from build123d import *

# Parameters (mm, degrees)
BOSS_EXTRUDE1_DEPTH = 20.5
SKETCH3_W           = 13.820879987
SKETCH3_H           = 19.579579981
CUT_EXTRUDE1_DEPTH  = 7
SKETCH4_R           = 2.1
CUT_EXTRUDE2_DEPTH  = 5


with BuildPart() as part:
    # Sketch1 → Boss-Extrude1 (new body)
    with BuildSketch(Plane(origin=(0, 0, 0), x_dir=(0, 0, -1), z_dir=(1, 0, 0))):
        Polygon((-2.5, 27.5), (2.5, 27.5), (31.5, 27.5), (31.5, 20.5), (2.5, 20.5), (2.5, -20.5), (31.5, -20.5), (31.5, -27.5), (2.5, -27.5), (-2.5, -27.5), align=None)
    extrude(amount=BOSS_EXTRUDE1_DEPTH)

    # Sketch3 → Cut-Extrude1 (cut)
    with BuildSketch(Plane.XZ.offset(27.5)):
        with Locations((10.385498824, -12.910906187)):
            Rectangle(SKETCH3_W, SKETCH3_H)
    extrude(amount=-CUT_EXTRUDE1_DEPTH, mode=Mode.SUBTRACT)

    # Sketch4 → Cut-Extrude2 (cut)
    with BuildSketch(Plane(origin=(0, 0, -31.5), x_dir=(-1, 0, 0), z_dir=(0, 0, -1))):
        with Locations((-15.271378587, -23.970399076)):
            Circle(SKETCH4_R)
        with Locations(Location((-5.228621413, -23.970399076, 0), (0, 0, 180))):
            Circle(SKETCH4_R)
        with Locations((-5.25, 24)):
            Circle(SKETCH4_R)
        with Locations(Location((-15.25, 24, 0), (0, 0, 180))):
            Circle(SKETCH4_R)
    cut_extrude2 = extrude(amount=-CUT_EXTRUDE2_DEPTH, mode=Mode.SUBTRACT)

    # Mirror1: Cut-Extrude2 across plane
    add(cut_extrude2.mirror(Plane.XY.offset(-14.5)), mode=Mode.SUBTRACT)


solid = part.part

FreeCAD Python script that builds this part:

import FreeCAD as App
import Part
import Sketcher
from FreeCAD import Vector
Q = App.Units.Quantity

doc = App.newDocument("Part")
body = doc.addObject("PartDesign::Body", "Body")

sketch1 = body.newObject("Sketcher::SketchObject", "Sketch")
sketch1.AttachmentSupport = (doc.getObject("YZ_Plane"), [""])
sketch1.MapMode = "FlatFace"
sketch1.addGeometry(Part.LineSegment(Vector(28, -32, 0), Vector(28, 2, 0)), False)
sketch1.addGeometry(Part.LineSegment(Vector(28, 2, 0), Vector(-28, 2, 0)), False)
sketch1.addGeometry(Part.LineSegment(Vector(-28, 2, 0), Vector(-28, -32, 0)), False)
sketch1.addGeometry(Part.LineSegment(Vector(-28, -32, 0), Vector(-20, -32, 0)), False)
sketch1.addGeometry(Part.LineSegment(Vector(-20, -32, 0), Vector(-20, -2, 0)), False)
sketch1.addGeometry(Part.LineSegment(Vector(-20, -2, 0), Vector(20, -2, 0)), False)
sketch1.addGeometry(Part.LineSegment(Vector(20, -2, 0), Vector(20, -32, 0)), False)
sketch1.addGeometry(Part.LineSegment(Vector(20, -32, 0), Vector(28, -32, 0)), False)
sketch1.addConstraint(Sketcher.Constraint("Coincident", 0, 2, 1, 1))
sketch1.addConstraint(Sketcher.Constraint("Coincident", 1, 2, 2, 1))
sketch1.addConstraint(Sketcher.Constraint("Coincident", 2, 2, 3, 1))
sketch1.addConstraint(Sketcher.Constraint("Coincident", 3, 2, 4, 1))
sketch1.addConstraint(Sketcher.Constraint("Coincident", 4, 2, 5, 1))
sketch1.addConstraint(Sketcher.Constraint("Coincident", 5, 2, 6, 1))
sketch1.addConstraint(Sketcher.Constraint("Coincident", 6, 2, 7, 1))
sketch1.addConstraint(Sketcher.Constraint("Coincident", 7, 2, 0, 1))
sketch1.addConstraint(Sketcher.Constraint("Vertical", 0))
sketch1.addConstraint(Sketcher.Constraint("Horizontal", 1))
sketch1.addConstraint(Sketcher.Constraint("Vertical", 2))
sketch1.addConstraint(Sketcher.Constraint("Horizontal", 3))
sketch1.addConstraint(Sketcher.Constraint("Vertical", 4))
sketch1.addConstraint(Sketcher.Constraint("Horizontal", 5))
sketch1.addConstraint(Sketcher.Constraint("Vertical", 6))
sketch1.addConstraint(Sketcher.Constraint("Horizontal", 7))
sketch1.addConstraint(Sketcher.Constraint("Symmetric", 3, 2, 6, 2, -2))
sketch1.addConstraint(Sketcher.Constraint("Equal", 3, 7))
sketch1.addConstraint(Sketcher.Constraint("DistanceX", 1, 2, 1, 1, Q("55 mm")))
sketch1.addConstraint(Sketcher.Constraint("DistanceX", 3, 1, 3, 2, Q("7 mm")))
sketch1.addConstraint(Sketcher.Constraint("DistanceY", 0, 1, 0, 2, Q("34 mm")))
sketch1.addConstraint(Sketcher.Constraint("DistanceY", 4, 1, 4, 2, Q("29 mm")))
sketch1.addConstraint(Sketcher.Constraint("DistanceY", -1, 1, 0, 2, Q("2.5 mm")))
pad1 = body.newObject("PartDesign::Pad", "Pad")
pad1.Profile = sketch1
pad1.Length = 20.5

sketch2 = body.newObject("Sketcher::SketchObject", "Sketch001")
sketch2.AttachmentSupport = (doc.getObject("XZ_Plane"), [""])
sketch2.MapMode = "FlatFace"
sketch2.AttachmentOffset = App.Placement(Vector(0, 0, 27.5), App.Rotation())
sketch2.addGeometry(Part.LineSegment(Vector(3, -3, 0), Vector(3, -23, 0)), False)
sketch2.addGeometry(Part.LineSegment(Vector(3, -23, 0), Vector(17, -23, 0)), False)
sketch2.addGeometry(Part.LineSegment(Vector(17, -23, 0), Vector(17, -3, 0)), False)
sketch2.addGeometry(Part.LineSegment(Vector(17, -3, 0), Vector(3, -3, 0)), False)
sketch2.addConstraint(Sketcher.Constraint("Coincident", 0, 2, 1, 1))
sketch2.addConstraint(Sketcher.Constraint("Coincident", 1, 2, 2, 1))
sketch2.addConstraint(Sketcher.Constraint("Coincident", 2, 2, 3, 1))
sketch2.addConstraint(Sketcher.Constraint("Coincident", 3, 2, 0, 1))
sketch2.addConstraint(Sketcher.Constraint("Vertical", 0))
sketch2.addConstraint(Sketcher.Constraint("Horizontal", 1))
sketch2.addConstraint(Sketcher.Constraint("Vertical", 2))
sketch2.addConstraint(Sketcher.Constraint("Horizontal", 3))
sketch2.addConstraint(Sketcher.Constraint("DistanceX", 1, 1, 1, 2, Q("13.82088 mm")))
sketch2.addConstraint(Sketcher.Constraint("DistanceY", 0, 2, 0, 1, Q("19.57958 mm")))
sketch2.addConstraint(Sketcher.Constraint("DistanceX", -1, 1, 0, 2, Q("3.475059 mm")))
sketch2.addConstraint(Sketcher.Constraint("DistanceY", 0, 2, -1, 1, Q("22.700696 mm")))
pocket1 = body.newObject("PartDesign::Pocket", "Pocket")
pocket1.Profile = sketch2
pocket1.Length = 7

sketch3 = body.newObject("Sketcher::SketchObject", "Sketch002")
sketch3.AttachmentSupport = (doc.getObject("XY_Plane"), [""])
sketch3.MapMode = "FlatFace"
sketch3.AttachmentOffset = App.Placement(Vector(0, 0, -31.5), App.Rotation())
sketch3.addGeometry(Part.Circle(Vector(15.3, -24, 0), Vector(0, 0, 1), 2.1), False)
sketch3.addGeometry(Part.Circle(Vector(5.2, -24, 0), Vector(0, 0, 1), 2.1), False)
sketch3.addGeometry(Part.Circle(Vector(5.2, 24, 0), Vector(0, 0, 1), 2.1), False)
sketch3.addGeometry(Part.Circle(Vector(15.2, 24, 0), Vector(0, 0, 1), 2.1), False)
sketch3.addConstraint(Sketcher.Constraint("Equal", 0, 1))
sketch3.addConstraint(Sketcher.Constraint("Equal", 1, 2))
sketch3.addConstraint(Sketcher.Constraint("Equal", 2, 3))
sketch3.addConstraint(Sketcher.Constraint("Horizontal", 0, 3, 1, 3))
sketch3.addConstraint(Sketcher.Constraint("Horizontal", 2, 3, 3, 3))
sketch3.addConstraint(Sketcher.Constraint("Diameter", 0, Q("4.2 mm")))
sketch3.addConstraint(Sketcher.Constraint("DistanceY", -1, 1, 2, 3, Q("24 mm")))
sketch3.addConstraint(Sketcher.Constraint("DistanceX", 2, 3, 3, 3, Q("10 mm")))
sketch3.addConstraint(Sketcher.Constraint("DistanceX", -1, 1, 2, 3, Q("5.25 mm")))
sketch3.addConstraint(Sketcher.Constraint("DistanceY", 0, 3, -1, 1, Q("23.970399 mm")))
sketch3.addConstraint(Sketcher.Constraint("DistanceX", -1, 1, 0, 3, Q("15.271379 mm")))
sketch3.addConstraint(Sketcher.Constraint("DistanceX", -1, 1, 1, 3, Q("5.228621 mm")))
pocket2 = body.newObject("PartDesign::Pocket", "Pocket001")
pocket2.Profile = sketch3
pocket2.Length = 5
pocket2.Reversed = True
doc.recompute()

datumplane = body.newObject("PartDesign::Plane", "DatumPlane")
datumplane.AttachmentSupport = (doc.getObject("XY_Plane"), [""])
datumplane.MapMode = "FlatFace"
datumplane.AttachmentOffset = App.Placement(Vector(0, 0, -14.5), App.Rotation())
mirrored = body.newObject("PartDesign::Mirrored", "Mirrored")
mirrored.Originals = [pocket2]
mirrored.MirrorPlane = (datumplane, [""])
body.Tip = mirrored

doc.recompute()
